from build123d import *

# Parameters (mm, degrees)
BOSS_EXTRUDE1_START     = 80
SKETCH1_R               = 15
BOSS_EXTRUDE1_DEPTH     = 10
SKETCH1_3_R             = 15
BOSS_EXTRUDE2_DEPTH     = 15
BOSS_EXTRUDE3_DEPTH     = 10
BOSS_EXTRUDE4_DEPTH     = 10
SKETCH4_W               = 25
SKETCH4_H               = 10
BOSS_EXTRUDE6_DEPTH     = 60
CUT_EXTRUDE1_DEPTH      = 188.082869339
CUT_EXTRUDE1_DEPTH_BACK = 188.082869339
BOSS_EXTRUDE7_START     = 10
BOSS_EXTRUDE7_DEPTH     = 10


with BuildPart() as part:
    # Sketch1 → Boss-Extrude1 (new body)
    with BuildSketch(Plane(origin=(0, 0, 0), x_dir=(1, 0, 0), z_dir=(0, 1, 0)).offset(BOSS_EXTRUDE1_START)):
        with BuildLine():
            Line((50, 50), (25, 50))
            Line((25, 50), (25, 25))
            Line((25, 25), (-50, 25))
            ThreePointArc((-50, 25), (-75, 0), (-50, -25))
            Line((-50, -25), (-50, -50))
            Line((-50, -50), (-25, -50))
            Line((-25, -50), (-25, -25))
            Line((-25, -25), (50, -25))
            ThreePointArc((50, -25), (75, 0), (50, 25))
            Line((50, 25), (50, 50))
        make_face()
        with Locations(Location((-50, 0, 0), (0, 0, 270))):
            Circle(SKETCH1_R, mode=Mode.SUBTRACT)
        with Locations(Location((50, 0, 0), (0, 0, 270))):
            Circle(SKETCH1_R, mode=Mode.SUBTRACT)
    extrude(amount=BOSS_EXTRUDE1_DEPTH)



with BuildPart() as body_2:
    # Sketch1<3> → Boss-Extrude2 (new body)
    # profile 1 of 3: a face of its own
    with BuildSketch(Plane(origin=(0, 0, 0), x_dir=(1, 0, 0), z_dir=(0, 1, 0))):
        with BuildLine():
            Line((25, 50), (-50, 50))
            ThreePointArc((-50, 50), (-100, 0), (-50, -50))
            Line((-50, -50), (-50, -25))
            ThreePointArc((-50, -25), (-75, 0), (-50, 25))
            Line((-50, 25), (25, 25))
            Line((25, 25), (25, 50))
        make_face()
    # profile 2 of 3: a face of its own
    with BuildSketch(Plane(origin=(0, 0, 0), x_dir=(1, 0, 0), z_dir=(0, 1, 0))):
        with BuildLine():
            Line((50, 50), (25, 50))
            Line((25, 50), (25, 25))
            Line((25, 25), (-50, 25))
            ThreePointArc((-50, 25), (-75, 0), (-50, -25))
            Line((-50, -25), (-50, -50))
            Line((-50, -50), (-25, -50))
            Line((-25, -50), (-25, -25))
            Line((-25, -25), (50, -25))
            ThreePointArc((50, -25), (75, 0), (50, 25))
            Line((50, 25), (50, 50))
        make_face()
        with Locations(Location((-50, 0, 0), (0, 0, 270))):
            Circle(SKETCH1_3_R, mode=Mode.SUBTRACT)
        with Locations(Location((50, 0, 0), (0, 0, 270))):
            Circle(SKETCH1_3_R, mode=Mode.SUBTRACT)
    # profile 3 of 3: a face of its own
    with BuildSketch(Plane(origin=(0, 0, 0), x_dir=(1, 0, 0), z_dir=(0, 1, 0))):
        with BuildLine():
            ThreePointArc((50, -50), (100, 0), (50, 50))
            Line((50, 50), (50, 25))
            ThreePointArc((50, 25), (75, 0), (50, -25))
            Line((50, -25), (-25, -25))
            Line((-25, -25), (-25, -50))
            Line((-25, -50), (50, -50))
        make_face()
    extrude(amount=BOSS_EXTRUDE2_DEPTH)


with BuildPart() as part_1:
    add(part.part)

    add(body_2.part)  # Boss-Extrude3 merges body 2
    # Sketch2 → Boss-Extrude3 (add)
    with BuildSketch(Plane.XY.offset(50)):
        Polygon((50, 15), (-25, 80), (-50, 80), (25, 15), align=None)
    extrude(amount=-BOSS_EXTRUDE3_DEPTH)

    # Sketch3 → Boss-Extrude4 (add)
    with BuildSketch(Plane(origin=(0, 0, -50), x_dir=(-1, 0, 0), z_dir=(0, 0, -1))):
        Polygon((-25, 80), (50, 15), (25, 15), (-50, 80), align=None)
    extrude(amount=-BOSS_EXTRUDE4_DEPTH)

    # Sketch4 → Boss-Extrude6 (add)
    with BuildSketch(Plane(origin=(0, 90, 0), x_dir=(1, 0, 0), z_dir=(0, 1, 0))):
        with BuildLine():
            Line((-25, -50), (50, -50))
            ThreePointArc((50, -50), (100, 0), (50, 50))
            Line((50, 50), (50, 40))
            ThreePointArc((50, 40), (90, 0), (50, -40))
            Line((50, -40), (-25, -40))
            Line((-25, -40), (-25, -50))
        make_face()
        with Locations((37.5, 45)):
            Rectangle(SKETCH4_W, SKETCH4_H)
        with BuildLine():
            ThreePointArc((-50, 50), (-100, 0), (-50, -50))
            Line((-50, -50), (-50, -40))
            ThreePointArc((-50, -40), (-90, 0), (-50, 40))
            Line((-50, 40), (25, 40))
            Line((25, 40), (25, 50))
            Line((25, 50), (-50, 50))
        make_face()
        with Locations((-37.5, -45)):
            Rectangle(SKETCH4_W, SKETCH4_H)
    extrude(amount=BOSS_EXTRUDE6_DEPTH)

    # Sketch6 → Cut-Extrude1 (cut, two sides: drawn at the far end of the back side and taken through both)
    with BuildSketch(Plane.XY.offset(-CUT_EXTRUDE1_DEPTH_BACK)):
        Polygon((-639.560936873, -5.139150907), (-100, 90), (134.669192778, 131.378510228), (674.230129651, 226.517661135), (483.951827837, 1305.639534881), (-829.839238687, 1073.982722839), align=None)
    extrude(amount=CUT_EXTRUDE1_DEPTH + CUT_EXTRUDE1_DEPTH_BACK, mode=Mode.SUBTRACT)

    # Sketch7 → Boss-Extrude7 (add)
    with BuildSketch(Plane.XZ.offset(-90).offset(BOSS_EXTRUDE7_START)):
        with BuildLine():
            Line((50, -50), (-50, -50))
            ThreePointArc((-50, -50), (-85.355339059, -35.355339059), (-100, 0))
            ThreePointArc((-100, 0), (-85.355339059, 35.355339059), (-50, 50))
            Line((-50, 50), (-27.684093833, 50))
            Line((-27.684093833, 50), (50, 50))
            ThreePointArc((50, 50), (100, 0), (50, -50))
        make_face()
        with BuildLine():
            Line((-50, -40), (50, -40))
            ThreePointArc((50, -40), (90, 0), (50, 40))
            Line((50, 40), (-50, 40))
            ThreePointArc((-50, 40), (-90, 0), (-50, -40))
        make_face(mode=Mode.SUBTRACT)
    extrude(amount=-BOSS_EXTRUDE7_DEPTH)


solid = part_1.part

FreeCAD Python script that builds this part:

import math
import FreeCAD as App
import Part
import Sketcher
from FreeCAD import Vector
Q = App.Units.Quantity

doc = App.newDocument("Part")
body = doc.addObject("PartDesign::Body", "Body")

# Sketch on XZ plane
sketch1 = body.newObject("Sketcher::SketchObject", "Sketch")
sketch1.AttachmentSupport = (doc.getObject("XZ_Plane"), [""])
sketch1.MapMode = "FlatFace"
sketch1.AttachmentOffset = App.Placement(Vector(0, 0, -80), App.Rotation())
sketch1.addGeometry([
    Part.LineSegment(Vector(50, -50, 0), Vector(25, -50, 0)),  # 0
    Part.LineSegment(Vector(25, -50, 0), Vector(25, -25, 0)),  # 1
    Part.LineSegment(Vector(25, -25, 0), Vector(-50, -25, 0)),  # 2
    Part.ArcOfCircle(Part.Circle(Vector(-50, 0, 0), Vector(0, 0, 1), 25), math.radians(90), math.radians(270)),  # 3
    Part.LineSegment(Vector(-50, 25, 0), Vector(-50, 50, 0)),  # 4
    Part.LineSegment(Vector(-50, 50, 0), Vector(-25, 50, 0)),  # 5
    Part.LineSegment(Vector(-25, 50, 0), Vector(-25, 25, 0)),  # 6
    Part.LineSegment(Vector(-25, 25, 0), Vector(50, 25, 0)),  # 7
    Part.ArcOfCircle(Part.Circle(Vector(50, 0, 0), Vector(0, 0, 1), 25), math.radians(-90), math.radians(90)),  # 8
    Part.LineSegment(Vector(50, -25, 0), Vector(50, -50, 0)),  # 9
    Part.Circle(Vector(-50, 0, 0), Vector(0, 0, 1), 15),  # 10
    Part.Circle(Vector(50, 0, 0), Vector(0, 0, 1), 15),  # 11
], False)
sketch1.addConstraint([
    Sketcher.Constraint("Coincident", 0, 2, 1, 1),
    Sketcher.Constraint("Coincident", 1, 2, 2, 1),
    Sketcher.Constraint("Tangent", 2, 2, 3, 2),
    Sketcher.Constraint("Coincident", 3, 1, 4, 1),
    Sketcher.Constraint("Coincident", 4, 2, 5, 1),
    Sketcher.Constraint("Coincident", 5, 2, 6, 1),
    Sketcher.Constraint("Coincident", 6, 2, 7, 1),
    Sketcher.Constraint("Tangent", 7, 2, 8, 2),
    Sketcher.Constraint("Coincident", 8, 1, 9, 1),
    Sketcher.Constraint("Coincident", 9, 2, 0, 1),
    Sketcher.Constraint("Horizontal", 0),
    Sketcher.Constraint("Vertical", 1),
    Sketcher.Constraint("Horizontal", 2),
    Sketcher.Constraint("Vertical", 4),
    Sketcher.Constraint("Horizontal", 5),
    Sketcher.Constraint("Vertical", 6),
    Sketcher.Constraint("Horizontal", 7),
    Sketcher.Constraint("Vertical", 9),
    Sketcher.Constraint("Coincident", 10, 3, 3, 3),
    Sketcher.Constraint("Coincident", 11, 3, 8, 3),
    Sketcher.Constraint("Equal", 3, 8),
    Sketcher.Constraint("Equal", 10, 11),
    Sketcher.Constraint("Symmetric", 3, 3, 8, 3, -1, 1),
    Sketcher.Constraint("Symmetric", 0, 2, 5, 2, -1, 1),
    Sketcher.Constraint("Symmetric", 3, 1, 7, 2, -2),
    Sketcher.Constraint("Vertical", 7, 2, 8, 1),
    Sketcher.Constraint("Equal", 5, 1),
    Sketcher.Constraint("Diameter", 10, Q("30 mm")),
    Sketcher.Constraint("Radius", 3, Q("25 mm")),
    Sketcher.Constraint("DistanceX", 0, 2, 0, 1, Q("25 mm")),
    Sketcher.Constraint("DistanceX", 2, 2, 2, 1, Q("75 mm")),
])
pad1 = body.newObject("PartDesign::Pad", "Pad")
pad1.Profile = sketch1
pad1.Length = 10
pad1.Reversed = True
body2 = doc.addObject("PartDesign::Body", "Body001")

# Sketch on XZ plane
sketch2 = body2.newObject("Sketcher::SketchObject", "Sketch001")
sketch2.AttachmentSupport = (doc.getObject("XZ_Plane001"), [""])
sketch2.MapMode = "FlatFace"
sketch2.addGeometry([
    Part.ArcOfCircle(Part.Circle(Vector(-50, 0, 0), Vector(0, 0, 1), 50), math.radians(90), math.radians(270)),  # 0
    Part.LineSegment(Vector(-50, 50, 0), Vector(50, 50, 0)),  # 1
    Part.ArcOfCircle(Part.Circle(Vector(50, 0, 0), Vector(0, 0, 1), 50), math.radians(-90), math.radians(90)),  # 2
    Part.LineSegment(Vector(50, -50, 0), Vector(-50, -50, 0)),  # 3
    Part.Circle(Vector(50, 0, 0), Vector(0, 0, 1), 15),  # 4
    Part.Circle(Vector(-50, 0, 0), Vector(0, 0, 1), 15),  # 5
], False)
sketch2.addConstraint([
    Sketcher.Constraint("Tangent", 0, 1, 1, 1),
    Sketcher.Constraint("Tangent", 1, 2, 2, 2),
    Sketcher.Constraint("Tangent", 2, 1, 3, 1),
    Sketcher.Constraint("Tangent", 3, 2, 0, 2),
    Sketcher.Constraint("Horizontal", 1),
    Sketcher.Constraint("Horizontal", 3),
    Sketcher.Constraint("Coincident", 4, 3, 2, 3),
    Sketcher.Constraint("Coincident", 5, 3, 0, 3),
    Sketcher.Constraint("Equal", 4, 5),
    Sketcher.Constraint("Symmetric", 0, 3, 2, 3, -1, 1),
    Sketcher.Constraint("Diameter", 4, Q("30 mm")),
    Sketcher.Constraint("Radius", 0, Q("50 mm")),
    Sketcher.Constraint("DistanceX", 1, 1, 1, 2, Q("100 mm")),
])
pad2 = body2.newObject("PartDesign::Pad", "Pad001")
pad2.Profile = sketch2
pad2.Length = 15
pad2.Reversed = True
body.AllowCompound = True
doc.recompute()

boolean = body.newObject("PartDesign::Boolean", "Boolean")
boolean.Type = "Fuse"
boolean.addObjects([body2])

# Sketch on XY plane
sketch3 = body.newObject("Sketcher::SketchObject", "Sketch002")
sketch3.AttachmentSupport = (doc.getObject("XY_Plane"), [""])
sketch3.MapMode = "FlatFace"
sketch3.AttachmentOffset = App.Placement(Vector(0, 0, 50), App.Rotation())
sketch3.addGeometry([
    Part.LineSegment(Vector(50, 15, 0), Vector(-25, 80, 0)),
    Part.LineSegment(Vector(-25, 80, 0), Vector(-50, 80, 0)),
    Part.LineSegment(Vector(-50, 80, 0), Vector(25, 15, 0)),
    Part.LineSegment(Vector(25, 15, 0), Vector(50, 15, 0)),
], False)
sketch3.addConstraint([
    Sketcher.Constraint("Coincident", 0, 2, 1, 1),
    Sketcher.Constraint("Coincident", 1, 2, 2, 1),
    Sketcher.Constraint("Coincident", 2, 2, 3, 1),
    Sketcher.Constraint("Coincident", 3, 2, 0, 1),
    Sketcher.Constraint("Horizontal", 1),
    Sketcher.Constraint("Horizontal", 3),
    Sketcher.Constraint("Parallel", 0, 2),
    Sketcher.Constraint("DistanceX", 1, 2, 1, 1, Q("25 mm")),
    Sketcher.Constraint("DistanceX", 0, 2, -1, 1, Q("25 mm")),
    Sketcher.Constraint("DistanceY", -1, 1, 0, 2, Q("80 mm")),
    Sketcher.Constraint("DistanceX", -1, 1, 2, 2, Q("25 mm")),
    Sketcher.Constraint("DistanceY", -1, 1, 2, 2, Q("15 mm")),
])
pad3 = body.newObject("PartDesign::Pad", "Pad002")
pad3.Profile = sketch3
pad3.Length = 10
pad3.Reversed = True

# Sketch on XY plane
sketch4 = body.newObject("Sketcher::SketchObject", "Sketch003")
sketch4.AttachmentSupport = (doc.getObject("XY_Plane"), [""])
sketch4.MapMode = "FlatFace"
sketch4.AttachmentOffset = App.Placement(Vector(0, 0, -50), App.Rotation())
sketch4.addGeometry([
    Part.LineSegment(Vector(-50, 15, 0), Vector(25, 80, 0)),
    Part.LineSegment(Vector(25, 80, 0), Vector(50, 80, 0)),
    Part.LineSegment(Vector(50, 80, 0), Vector(-25, 15, 0)),
    Part.LineSegment(Vector(-25, 15, 0), Vector(-50, 15, 0)),
], False)
sketch4.addConstraint([
    Sketcher.Constraint("Coincident", 0, 2, 1, 1),
    Sketcher.Constraint("Coincident", 1, 2, 2, 1),
    Sketcher.Constraint("Coincident", 2, 2, 3, 1),
    Sketcher.Constraint("Coincident", 3, 2, 0, 1),
    Sketcher.Constraint("Horizontal", 1),
    Sketcher.Constraint("Horizontal", 3),
    Sketcher.Constraint("Parallel", 0, 2),
    Sketcher.Constraint("DistanceX", 1, 1, 1, 2, Q("25 mm")),
    Sketcher.Constraint("DistanceX", -1, 1, 0, 2, Q("25 mm")),
    Sketcher.Constraint("DistanceY", -1, 1, 0, 2, Q("80 mm")),
    Sketcher.Constraint("DistanceX", 2, 2, -1, 1, Q("25 mm")),
    Sketcher.Constraint("DistanceY", -1, 1, 2, 2, Q("15 mm")),
])
pad4 = body.newObject("PartDesign::Pad", "Pad003")
pad4.Profile = sketch4
pad4.Length = 10

# Sketch on XZ plane
sketch5 = body.newObject("Sketcher::SketchObject", "Sketch004")
sketch5.AttachmentSupport = (doc.getObject("XZ_Plane"), [""])
sketch5.MapMode = "FlatFace"
sketch5.AttachmentOffset = App.Placement(Vector(0, 0, -90), App.Rotation())
sketch5.addGeometry([
    Part.ArcOfCircle(Part.Circle(Vector(50, 0, 0), Vector(0, 0, 1), 50), math.radians(-90), math.radians(90)),  # 0
    Part.LineSegment(Vector(50, -50, 0), Vector(-50, -50, 0)),  # 1
    Part.ArcOfCircle(Part.Circle(Vector(-50, 0, 0), Vector(0, 0, 1), 50), math.radians(90), math.radians(270)),  # 2
    Part.LineSegment(Vector(-50, 50, 0), Vector(50, 50, 0)),  # 3
    Part.ArcOfCircle(Part.Circle(Vector(-50, 0, 0), Vector(0, 0, 1), 40), math.radians(90), math.radians(270)),  # 4
    Part.LineSegment(Vector(-50, -40, 0), Vector(50, -40, 0)),  # 5
    Part.ArcOfCircle(Part.Circle(Vector(50, 0, 0), Vector(0, 0, 1), 40), math.radians(-90), math.radians(90)),  # 6
    Part.LineSegment(Vector(50, 40, 0), Vector(-50, 40, 0)),  # 7
], False)
sketch5.addConstraint([
    Sketcher.Constraint("Tangent", 0, 1, 1, 1),
    Sketcher.Constraint("Tangent", 1, 2, 2, 2),
    Sketcher.Constraint("Tangent", 2, 1, 3, 1),
    Sketcher.Constraint("Tangent", 3, 2, 0, 2),
    Sketcher.Constraint("Tangent", 4, 2, 5, 1),
    Sketcher.Constraint("Tangent", 5, 2, 6, 1),
    Sketcher.Constraint("Tangent", 6, 2, 7, 1),
    Sketcher.Constraint("Tangent", 7, 2, 4, 1),
    Sketcher.Constraint("Horizontal", 1),
    Sketcher.Constraint("Horizontal", 3),
    Sketcher.Constraint("Horizontal", 5),
    Sketcher.Constraint("Horizontal", 7),
    Sketcher.Constraint("Coincident", 4, 3, 2, 3),
    Sketcher.Constraint("Symmetric", 0, 3, 2, 3, -1, 1),
    Sketcher.Constraint("Vertical", 6, 3, 0, 1),
    Sketcher.Constraint("Radius", 0, Q("50 mm")),
    Sketcher.Constraint("Radius", 4, Q("40 mm")),
    Sketcher.Constraint("DistanceX", 1, 2, 1, 1, Q("100 mm")),
])
pad5 = body.newObject("PartDesign::Pad", "Pad004")
pad5.Profile = sketch5
pad5.Length = 60
pad5.Reversed = True

# Sketch on XY plane
sketch6 = body.newObject("Sketcher::SketchObject", "Sketch005")
sketch6.AttachmentSupport = (doc.getObject("XY_Plane"), [""])
sketch6.MapMode = "FlatFace"
sketch6.addGeometry([
    Part.LineSegment(Vector(-640, -5, 0), Vector(674, 227, 0)),
    Part.LineSegment(Vector(674, 227, 0), Vector(484, 1306, 0)),
    Part.LineSegment(Vector(484, 1306, 0), Vector(-830, 1074, 0)),
    Part.LineSegment(Vector(-830, 1074, 0), Vector(-640, -5, 0)),
], False)
sketch6.addConstraint([
    Sketcher.Constraint("Coincident", 0, 2, 1, 1),
    Sketcher.Constraint("Coincident", 1, 2, 2, 1),
    Sketcher.Constraint("Coincident", 2, 2, 3, 1),
    Sketcher.Constraint("Coincident", 3, 2, 0, 1),
    Sketcher.Constraint("Perpendicular", 0, 1),
    Sketcher.Constraint("Perpendicular", 1, 2),
    Sketcher.Constraint("Perpendicular", 2, 3),
    Sketcher.Constraint("Angle", 0, Q("10 deg")),
    Sketcher.Constraint("DistanceX", 1, 2, 0, 2, Q("190.278302 mm")),
    Sketcher.Constraint("Distance", 0, Q("1334.058411 mm")),
    Sketcher.Constraint("DistanceX", -1, 1, 0, 2, Q("674.23013 mm")),
    Sketcher.Constraint("DistanceY", -1, 1, 0, 2, Q("226.517661 mm")),
])
pocket1 = body.newObject("PartDesign::Pocket", "Pocket")
pocket1.Profile = sketch6
pocket1.Type = "ThroughAll"
pocket1.Midplane = True

# Sketch on XZ plane
sketch7 = body.newObject("Sketcher::SketchObject", "Sketch006")
sketch7.AttachmentSupport = (doc.getObject("XZ_Plane"), [""])
sketch7.MapMode = "FlatFace"
sketch7.AttachmentOffset = App.Placement(Vector(0, 0, -80), App.Rotation())
sketch7.addGeometry([
    Part.LineSegment(Vector(-50, -50, 0), Vector(50, -50, 0)),  # 0
    Part.ArcOfCircle(Part.Circle(Vector(50, 0, 0), Vector(0, 0, 1), 50), math.radians(-90), math.radians(90)),  # 1
    Part.LineSegment(Vector(50, 50, 0), Vector(-50, 50, 0)),  # 2
    Part.ArcOfCircle(Part.Circle(Vector(-50, 0, 0), Vector(0, 0, 1), 50), math.radians(90), math.radians(180)),  # 3
    Part.ArcOfCircle(Part.Circle(Vector(-50, 0, 0), Vector(0, 0, 1), 50), math.radians(-180), math.radians(-90)),  # 4
    Part.ArcOfCircle(Part.Circle(Vector(-50, 0, 0), Vector(0, 0, 1), 40), math.radians(90), math.radians(270)),  # 5
    Part.LineSegment(Vector(-50, 40, 0), Vector(50, 40, 0)),  # 6
    Part.ArcOfCircle(Part.Circle(Vector(50, 0, 0), Vector(0, 0, 1), 40), math.radians(-90), math.radians(90)),  # 7
    Part.LineSegment(Vector(50, -40, 0), Vector(-50, -40, 0)),  # 8
], False)
sketch7.addConstraint([
    Sketcher.Constraint("Tangent", 0, 2, 1, 1),
    Sketcher.Constraint("Tangent", 1, 2, 2, 1),
    Sketcher.Constraint("Tangent", 2, 2, 3, 1),
    Sketcher.Constraint("Tangent", 3, 2, 4, 1),
    Sketcher.Constraint("Tangent", 4, 2, 0, 1),
    Sketcher.Constraint("Tangent", 5, 1, 6, 1),
    Sketcher.Constraint("Tangent", 6, 2, 7, 2),
    Sketcher.Constraint("Tangent", 7, 1, 8, 1),
    Sketcher.Constraint("Tangent", 8, 2, 5, 2),
    Sketcher.Constraint("Horizontal", 0),
    Sketcher.Constraint("Horizontal", 2),
    Sketcher.Constraint("Horizontal", 6),
    Sketcher.Constraint("Horizontal", 8),
    Sketcher.Constraint("Coincident", 5, 3, 3, 3),
    Sketcher.Constraint("Coincident", 7, 3, 1, 3),
    Sketcher.Constraint("Symmetric", 1, 3, 3, 3, -1, 1),
    Sketcher.Constraint("PointOnObject", 3, 2, -1),
    Sketcher.Constraint("Radius", 1, Q("50 mm")),
    Sketcher.Constraint("Radius", 5, Q("40 mm")),
    Sketcher.Constraint("DistanceX", 0, 1, 0, 2, Q("100 mm")),
])
pad6 = body.newObject("PartDesign::Pad", "Pad005")
pad6.Profile = sketch7
pad6.Length = 10
pad6.Reversed = True

doc.recompute()
